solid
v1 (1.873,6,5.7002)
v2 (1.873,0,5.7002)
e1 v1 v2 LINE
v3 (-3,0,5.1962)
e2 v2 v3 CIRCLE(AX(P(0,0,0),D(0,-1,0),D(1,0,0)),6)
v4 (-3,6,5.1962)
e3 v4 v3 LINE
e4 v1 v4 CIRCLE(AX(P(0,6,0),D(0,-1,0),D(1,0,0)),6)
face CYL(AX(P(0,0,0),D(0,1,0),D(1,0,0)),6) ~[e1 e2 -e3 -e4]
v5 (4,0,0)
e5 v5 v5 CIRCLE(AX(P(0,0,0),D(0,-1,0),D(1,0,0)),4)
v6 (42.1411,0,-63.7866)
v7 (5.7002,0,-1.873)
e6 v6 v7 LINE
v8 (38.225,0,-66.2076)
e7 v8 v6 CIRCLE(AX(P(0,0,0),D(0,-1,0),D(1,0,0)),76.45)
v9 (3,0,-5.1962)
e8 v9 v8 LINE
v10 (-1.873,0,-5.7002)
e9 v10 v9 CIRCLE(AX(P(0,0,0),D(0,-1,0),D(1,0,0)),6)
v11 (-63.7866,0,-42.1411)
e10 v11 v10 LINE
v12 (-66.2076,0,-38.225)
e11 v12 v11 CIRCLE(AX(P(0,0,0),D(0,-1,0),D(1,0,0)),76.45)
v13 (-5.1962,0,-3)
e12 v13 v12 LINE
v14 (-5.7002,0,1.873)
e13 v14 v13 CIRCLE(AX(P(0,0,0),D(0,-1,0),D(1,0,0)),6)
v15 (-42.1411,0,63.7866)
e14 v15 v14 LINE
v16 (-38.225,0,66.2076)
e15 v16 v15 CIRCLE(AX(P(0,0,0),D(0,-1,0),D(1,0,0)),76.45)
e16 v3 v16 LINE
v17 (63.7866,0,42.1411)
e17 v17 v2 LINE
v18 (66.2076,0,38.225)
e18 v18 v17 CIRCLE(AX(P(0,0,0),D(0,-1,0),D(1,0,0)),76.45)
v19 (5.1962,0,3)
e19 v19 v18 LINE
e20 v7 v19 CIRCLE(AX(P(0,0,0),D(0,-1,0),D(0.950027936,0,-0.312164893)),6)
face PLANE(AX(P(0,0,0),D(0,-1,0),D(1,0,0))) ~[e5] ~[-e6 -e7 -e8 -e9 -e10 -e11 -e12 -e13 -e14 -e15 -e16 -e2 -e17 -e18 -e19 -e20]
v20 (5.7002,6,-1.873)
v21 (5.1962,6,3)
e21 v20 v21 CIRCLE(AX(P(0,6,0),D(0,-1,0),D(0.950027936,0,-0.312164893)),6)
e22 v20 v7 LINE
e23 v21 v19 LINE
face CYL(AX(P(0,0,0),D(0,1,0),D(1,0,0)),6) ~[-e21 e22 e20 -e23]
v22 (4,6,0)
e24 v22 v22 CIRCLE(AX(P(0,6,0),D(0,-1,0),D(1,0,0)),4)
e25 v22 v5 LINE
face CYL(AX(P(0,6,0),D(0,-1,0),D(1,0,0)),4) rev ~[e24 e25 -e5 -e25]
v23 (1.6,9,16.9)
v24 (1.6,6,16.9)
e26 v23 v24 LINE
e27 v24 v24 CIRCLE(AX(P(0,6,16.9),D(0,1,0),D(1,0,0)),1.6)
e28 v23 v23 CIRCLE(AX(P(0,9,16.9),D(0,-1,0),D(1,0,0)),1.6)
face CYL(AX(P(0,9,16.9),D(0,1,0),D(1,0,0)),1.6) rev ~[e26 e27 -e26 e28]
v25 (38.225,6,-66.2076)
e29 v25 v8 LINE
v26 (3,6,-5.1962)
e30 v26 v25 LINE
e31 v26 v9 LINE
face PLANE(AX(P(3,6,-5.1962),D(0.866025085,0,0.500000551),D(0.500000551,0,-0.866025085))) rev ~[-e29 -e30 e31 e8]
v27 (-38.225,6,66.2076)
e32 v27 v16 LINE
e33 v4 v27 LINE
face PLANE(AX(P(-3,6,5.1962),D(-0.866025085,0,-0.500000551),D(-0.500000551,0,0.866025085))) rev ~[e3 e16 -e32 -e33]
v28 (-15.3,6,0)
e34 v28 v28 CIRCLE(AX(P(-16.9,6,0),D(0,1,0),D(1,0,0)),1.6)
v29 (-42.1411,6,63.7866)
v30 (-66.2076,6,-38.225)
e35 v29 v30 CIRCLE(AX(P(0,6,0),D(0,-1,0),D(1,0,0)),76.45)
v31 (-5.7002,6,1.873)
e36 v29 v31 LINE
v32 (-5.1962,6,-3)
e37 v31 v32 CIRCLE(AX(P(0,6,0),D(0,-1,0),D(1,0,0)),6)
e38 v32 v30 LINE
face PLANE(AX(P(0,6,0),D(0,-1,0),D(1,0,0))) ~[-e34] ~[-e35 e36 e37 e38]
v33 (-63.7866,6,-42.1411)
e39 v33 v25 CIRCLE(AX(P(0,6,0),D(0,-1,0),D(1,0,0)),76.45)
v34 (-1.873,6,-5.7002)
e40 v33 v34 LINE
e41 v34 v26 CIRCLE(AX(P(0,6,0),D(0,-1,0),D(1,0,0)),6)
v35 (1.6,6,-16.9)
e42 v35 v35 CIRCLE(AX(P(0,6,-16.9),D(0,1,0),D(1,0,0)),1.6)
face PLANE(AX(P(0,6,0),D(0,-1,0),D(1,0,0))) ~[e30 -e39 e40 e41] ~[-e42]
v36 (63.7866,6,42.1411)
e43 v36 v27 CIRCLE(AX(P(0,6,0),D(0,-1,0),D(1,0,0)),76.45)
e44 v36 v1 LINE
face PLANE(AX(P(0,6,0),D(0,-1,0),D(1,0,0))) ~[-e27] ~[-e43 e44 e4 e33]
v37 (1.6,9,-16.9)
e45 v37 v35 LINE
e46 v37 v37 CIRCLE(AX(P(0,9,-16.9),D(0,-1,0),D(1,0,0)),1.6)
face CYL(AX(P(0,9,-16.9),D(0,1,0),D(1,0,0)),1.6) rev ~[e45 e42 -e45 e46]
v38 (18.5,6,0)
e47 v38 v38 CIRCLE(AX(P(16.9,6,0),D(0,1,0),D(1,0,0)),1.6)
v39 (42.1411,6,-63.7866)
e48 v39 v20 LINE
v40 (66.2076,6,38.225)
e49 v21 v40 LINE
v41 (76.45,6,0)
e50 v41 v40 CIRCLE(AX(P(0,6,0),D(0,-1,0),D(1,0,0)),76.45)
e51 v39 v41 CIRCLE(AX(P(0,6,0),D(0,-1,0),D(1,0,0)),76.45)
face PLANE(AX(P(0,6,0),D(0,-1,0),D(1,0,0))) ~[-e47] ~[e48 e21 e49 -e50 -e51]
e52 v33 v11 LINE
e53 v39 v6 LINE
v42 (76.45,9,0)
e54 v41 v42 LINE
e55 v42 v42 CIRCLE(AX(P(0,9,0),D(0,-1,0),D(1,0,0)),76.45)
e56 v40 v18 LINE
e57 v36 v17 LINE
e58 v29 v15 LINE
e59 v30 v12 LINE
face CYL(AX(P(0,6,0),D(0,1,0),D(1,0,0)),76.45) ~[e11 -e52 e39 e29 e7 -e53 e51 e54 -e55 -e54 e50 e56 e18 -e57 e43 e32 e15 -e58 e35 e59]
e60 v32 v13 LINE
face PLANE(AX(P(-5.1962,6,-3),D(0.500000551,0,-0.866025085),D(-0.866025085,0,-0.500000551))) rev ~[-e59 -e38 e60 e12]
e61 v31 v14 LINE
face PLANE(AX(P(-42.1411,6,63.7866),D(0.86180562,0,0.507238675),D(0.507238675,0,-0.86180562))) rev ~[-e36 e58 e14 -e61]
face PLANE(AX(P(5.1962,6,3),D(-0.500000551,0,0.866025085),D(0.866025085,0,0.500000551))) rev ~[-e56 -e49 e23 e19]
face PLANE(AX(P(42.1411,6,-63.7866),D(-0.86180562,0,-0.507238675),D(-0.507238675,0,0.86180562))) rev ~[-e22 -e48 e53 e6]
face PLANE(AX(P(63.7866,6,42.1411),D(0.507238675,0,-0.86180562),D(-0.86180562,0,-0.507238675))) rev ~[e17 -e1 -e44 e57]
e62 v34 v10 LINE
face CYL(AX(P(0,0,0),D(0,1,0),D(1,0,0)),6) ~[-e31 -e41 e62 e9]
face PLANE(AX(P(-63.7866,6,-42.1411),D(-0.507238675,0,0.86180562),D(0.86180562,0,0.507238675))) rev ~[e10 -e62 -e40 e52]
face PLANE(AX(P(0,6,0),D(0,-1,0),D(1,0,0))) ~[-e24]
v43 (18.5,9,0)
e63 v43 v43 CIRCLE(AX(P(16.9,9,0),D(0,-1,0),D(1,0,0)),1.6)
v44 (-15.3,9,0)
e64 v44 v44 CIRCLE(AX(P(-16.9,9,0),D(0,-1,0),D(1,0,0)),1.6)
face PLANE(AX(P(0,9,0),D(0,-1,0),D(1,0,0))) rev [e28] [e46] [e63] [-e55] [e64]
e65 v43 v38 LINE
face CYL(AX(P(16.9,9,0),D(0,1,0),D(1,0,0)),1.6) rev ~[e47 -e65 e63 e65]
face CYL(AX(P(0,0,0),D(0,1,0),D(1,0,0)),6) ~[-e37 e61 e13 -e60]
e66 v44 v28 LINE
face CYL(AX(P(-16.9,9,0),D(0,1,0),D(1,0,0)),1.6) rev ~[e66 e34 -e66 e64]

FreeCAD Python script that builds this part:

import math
import FreeCAD as App
import Part
import Sketcher

V = App.Vector
Q = App.Units.Quantity

doc = App.newDocument("Part")
body = doc.addObject("PartDesign::Body", "Body")

# Sketch on XY plane
sketch1 = doc.addObject("Sketcher::SketchObject", "Sketch")
body.addObject(sketch1)
sketch1.AttachmentSupport = (doc.XY_Plane, [""])
sketch1.MapMode = "FlatFace"
sketch1.addGeometry([
    Part.LineSegment(V(4, 6, 0), V(4, 0, 0)),  # 0
    Part.LineSegment(V(4, 0, 0), V(6, 0, 0)),  # 1
    Part.LineSegment(V(6, 0, 0), V(6, 6, 0)),  # 2
    Part.LineSegment(V(6, 6, 0), V(76.45, 6, 0)),  # 3
    Part.LineSegment(V(76.45, 6, 0), V(76.45, 9, 0)),  # 4
    Part.LineSegment(V(76.45, 9, 0), V(0, 9, 0)),  # 5
    Part.LineSegment(V(0, 9, 0), V(0, 6, 0)),  # 6
    Part.LineSegment(V(0, 6, 0), V(4, 6, 0)),  # 7
], False)
sketch1.addConstraint([
    Sketcher.Constraint("Coincident", 0, 2, 1, 1),
    Sketcher.Constraint("Coincident", 1, 2, 2, 1),
    Sketcher.Constraint("Coincident", 2, 2, 3, 1),
    Sketcher.Constraint("Coincident", 3, 2, 4, 1),
    Sketcher.Constraint("Coincident", 4, 2, 5, 1),
    Sketcher.Constraint("Coincident", 5, 2, 6, 1),
    Sketcher.Constraint("Coincident", 6, 2, 7, 1),
    Sketcher.Constraint("Coincident", 7, 2, 0, 1),
    Sketcher.Constraint("Vertical", 0),
    Sketcher.Constraint("Horizontal", 1),
    Sketcher.Constraint("Vertical", 2),
    Sketcher.Constraint("Horizontal", 3),
    Sketcher.Constraint("Vertical", 4),
    Sketcher.Constraint("Horizontal", 5),
    Sketcher.Constraint("Vertical", 6),
    Sketcher.Constraint("Horizontal", 7),
    Sketcher.Constraint("PointOnObject", 0, 2, -1),
    Sketcher.Constraint("PointOnObject", 5, 2, -2),
    Sketcher.Constraint("Horizontal", 3, 2, 6, 2),
    Sketcher.Constraint("DistanceX", 1, 1, 1, 2, 2.0),
    Sketcher.Constraint("DistanceX", 7, 1, 7, 2, 4.0),
    Sketcher.Constraint("DistanceY", 0, 2, 0, 1, 6.0),
    Sketcher.Constraint("DistanceY", 4, 1, 4, 2, 3.0),
    Sketcher.Constraint("DistanceX", 5, 2, 5, 1, 76.45),
])
revolution = doc.addObject("PartDesign::Revolution", "Revolution")
body.addObject(revolution)
revolution.Profile = sketch1
revolution.ReferenceAxis = (sketch1, ["V_Axis"])
revolution.Angle = 360

# Sketch on XZ plane
sketch2 = doc.addObject("Sketcher::SketchObject", "Sketch001")
body.addObject(sketch2)
sketch2.AttachmentSupport = (doc.XZ_Plane, [""])
sketch2.MapMode = "FlatFace"
sketch2.AttachmentOffset = App.Placement(V(0, 0, -6), App.Rotation())
sketch2.addGeometry([
    Part.LineSegment(V(5.1962, 3, 0), V(66.2076, 38.225, 0)),  # 0
    Part.ArcOfCircle(Part.Circle(V(0, 0, 0), V(0, 0, 1), 76.45), math.radians(30.000016), math.radians(33.451047)),  # 1
    Part.LineSegment(V(63.7866, 42.1411, 0), V(1.873, 5.7002, 0)),  # 2
    Part.ArcOfCircle(Part.Circle(V(0, 0, 0), V(0, 0, 1), 6), math.radians(29.999773), math.radians(71.810254)),  # 3
    Part.ArcOfCircle(Part.Circle(V(0, 0, 0), V(0, 0, 1), 76.45), math.radians(-59.999984), math.radians(-56.548953)),  # 4
    Part.LineSegment(V(42.1411, -63.7866, 0), V(5.7002, -1.873, 0)),  # 5
    Part.ArcOfCircle(Part.Circle(V(0, 0, 0), V(0, 0, 1), 6), math.radians(-60.000227), math.radians(-18.189746)),  # 6
    Part.LineSegment(V(3, -5.1962, 0), V(38.225, -66.2076, 0)),  # 7
    Part.LineSegment(V(-3, 5.1962, 0), V(-38.225, 66.2076, 0)),  # 8
    Part.ArcOfCircle(Part.Circle(V(0, 0, 0), V(0, 0, 1), 76.45), math.radians(120.000016), math.radians(123.451047)),  # 9
    Part.LineSegment(V(-42.1411, 63.7866, 0), V(-5.7002, 1.873, 0)),  # 10
    Part.ArcOfCircle(Part.Circle(V(0, 0, 0), V(0, 0, 1), 6), math.radians(119.999773), math.radians(161.810254)),  # 11
    Part.ArcOfCircle(Part.Circle(V(0, 0, 0), V(0, 0, 1), 76.45), math.radians(-149.999984), math.radians(-146.548953)),  # 12
    Part.LineSegment(V(-63.7866, -42.1411, 0), V(-1.873, -5.7002, 0)),  # 13
    Part.ArcOfCircle(Part.Circle(V(0, 0, 0), V(0, 0, 1), 6), math.radians(-150.000227), math.radians(-108.189746)),  # 14
    Part.LineSegment(V(-5.1962, -3, 0), V(-66.2076, -38.225, 0)),  # 15
], False)
sketch2.addConstraint([
    Sketcher.Constraint("Coincident", 0, 2, 1, 1),
    Sketcher.Constraint("Coincident", 1, 2, 2, 1),
    Sketcher.Constraint("Coincident", 2, 2, 3, 2),
    Sketcher.Constraint("Coincident", 3, 1, 0, 1),
    Sketcher.Constraint("Coincident", 4, 2, 5, 1),
    Sketcher.Constraint("Coincident", 5, 2, 6, 2),
    Sketcher.Constraint("Coincident", 6, 1, 7, 1),
    Sketcher.Constraint("Coincident", 7, 2, 4, 1),
    Sketcher.Constraint("Coincident", 8, 2, 9, 1),
    Sketcher.Constraint("Coincident", 9, 2, 10, 1),
    Sketcher.Constraint("Coincident", 10, 2, 11, 2),
    Sketcher.Constraint("Coincident", 11, 1, 8, 1),
    Sketcher.Constraint("Coincident", 12, 2, 13, 1),
    Sketcher.Constraint("Coincident", 13, 2, 14, 2),
    Sketcher.Constraint("Coincident", 14, 1, 15, 1),
    Sketcher.Constraint("Coincident", 15, 2, 12, 1),
    Sketcher.Constraint("Coincident", 1, 3, -1, 1),
    Sketcher.Constraint("Coincident", 3, 3, -1, 1),
    Sketcher.Constraint("Coincident", 4, 3, -1, 1),
    Sketcher.Constraint("Coincident", 6, 3, -1, 1),
    Sketcher.Constraint("Coincident", 9, 3, -1, 1),
    Sketcher.Constraint("Coincident", 11, 3, -1, 1),
    Sketcher.Constraint("Coincident", 12, 3, -1, 1),
    Sketcher.Constraint("Coincident", 14, 3, -1, 1),
    Sketcher.Constraint("Equal", 1, 4),
    Sketcher.Constraint("Equal", 3, 6),
    Sketcher.Constraint("Equal", 4, 9),
    Sketcher.Constraint("Equal", 6, 11),
    Sketcher.Constraint("Equal", 9, 12),
    Sketcher.Constraint("Equal", 11, 14),
    Sketcher.Constraint("Perpendicular", 2, 5),
    Sketcher.Constraint("Perpendicular", 0, 7),
    Sketcher.Constraint("Parallel", 7, 8),
    Sketcher.Constraint("Parallel", 5, 10),
    Sketcher.Constraint("Perpendicular", 10, 13),
    Sketcher.Constraint("Perpendicular", 8, 15),
    Sketcher.Constraint("Equal", 2, 5),
    Sketcher.Constraint("Equal", 5, 10),
    Sketcher.Constraint("Equal", 10, 13),
    Sketcher.Constraint("Radius", 3, 6.0),
    Sketcher.Constraint("Angle", 0, Q("30 deg")),
    Sketcher.Constraint("Radius", 1, 76.45),
    Sketcher.Constraint("DistanceY", -1, 1, 3, 1, 3.0),
    Sketcher.Constraint("DistanceX", -1, 1, 6, 1, 3.0),
    Sketcher.Constraint("DistanceX", 11, 1, -1, 1, 3.0),
    Sketcher.Constraint("DistanceY", 14, 1, -1, 1, 3.0),
    Sketcher.Constraint("Angle", 2, Q("-149.52 deg")),
    Sketcher.Constraint("DistanceY", -1, 1, 1, 2, 42.141),
])
pad1 = doc.addObject("PartDesign::Pad", "Pad")
body.addObject(pad1)
pad1.Profile = sketch2
pad1.Length = 6

# Sketch on XZ plane
sketch3 = doc.addObject("Sketcher::SketchObject", "Sketch002")
body.addObject(sketch3)
sketch3.AttachmentSupport = (doc.XZ_Plane, [""])
sketch3.MapMode = "FlatFace"
sketch3.AttachmentOffset = App.Placement(V(0, 0, -9), App.Rotation())
sketch3.addGeometry([
    Part.Circle(V(16.9, 0, 0), V(0, 0, 1), 1.6),
    Part.Circle(V(0, -16.9, 0), V(0, 0, 1), 1.6),
    Part.Circle(V(0, 16.9, 0), V(0, 0, 1), 1.6),
    Part.Circle(V(-16.9, 0, 0), V(0, 0, 1), 1.6),
], False)
sketch3.addConstraint([
    Sketcher.Constraint("Equal", 0, 1),
    Sketcher.Constraint("Equal", 1, 2),
    Sketcher.Constraint("Equal", 2, 3),
    Sketcher.Constraint("Symmetric", 1, 3, 2, 3, -1, 1),
    Sketcher.Constraint("Symmetric", 0, 3, 3, 3, -1, 1),
    Sketcher.Constraint("PointOnObject", 0, 3, -1),
    Sketcher.Constraint("PointOnObject", 1, 3, -2),
    Sketcher.Constraint("Diameter", 0, 3.2),
    Sketcher.Constraint("DistanceY", 1, 3, 2, 3, 33.8),
    Sketcher.Constraint("DistanceX", 3, 3, 0, 3, 33.8),
])
pocket1 = doc.addObject("PartDesign::Pocket", "Pocket")
body.addObject(pocket1)
pocket1.Profile = sketch3
pocket1.Length = 10
pocket1.Reversed = True

doc.recompute()
